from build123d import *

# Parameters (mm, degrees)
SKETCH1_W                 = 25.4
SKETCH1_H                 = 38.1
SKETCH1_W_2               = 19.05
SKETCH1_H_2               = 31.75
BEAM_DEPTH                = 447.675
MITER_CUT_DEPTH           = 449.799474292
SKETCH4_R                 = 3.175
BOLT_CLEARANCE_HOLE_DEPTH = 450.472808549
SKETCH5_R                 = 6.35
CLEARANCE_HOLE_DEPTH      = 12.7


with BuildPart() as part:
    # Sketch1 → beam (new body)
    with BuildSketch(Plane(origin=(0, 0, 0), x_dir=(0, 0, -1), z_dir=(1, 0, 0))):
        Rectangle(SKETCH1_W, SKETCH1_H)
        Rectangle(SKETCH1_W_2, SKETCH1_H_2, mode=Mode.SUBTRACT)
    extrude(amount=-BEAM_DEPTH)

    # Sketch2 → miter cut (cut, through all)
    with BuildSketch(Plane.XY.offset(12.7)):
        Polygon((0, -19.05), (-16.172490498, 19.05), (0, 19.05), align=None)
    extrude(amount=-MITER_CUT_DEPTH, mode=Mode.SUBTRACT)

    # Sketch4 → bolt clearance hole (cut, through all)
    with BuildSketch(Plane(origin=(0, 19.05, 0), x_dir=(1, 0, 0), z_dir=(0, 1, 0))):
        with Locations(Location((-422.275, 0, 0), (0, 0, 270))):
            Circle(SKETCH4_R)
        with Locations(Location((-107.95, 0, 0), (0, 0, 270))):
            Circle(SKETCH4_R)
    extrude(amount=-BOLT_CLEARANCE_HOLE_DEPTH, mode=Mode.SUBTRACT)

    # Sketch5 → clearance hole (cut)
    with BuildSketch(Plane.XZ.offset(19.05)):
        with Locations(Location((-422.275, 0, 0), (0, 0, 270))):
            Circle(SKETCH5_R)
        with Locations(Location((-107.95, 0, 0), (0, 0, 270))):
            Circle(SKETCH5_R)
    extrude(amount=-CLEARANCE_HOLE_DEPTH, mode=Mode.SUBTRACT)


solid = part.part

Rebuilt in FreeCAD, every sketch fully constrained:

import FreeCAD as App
import Part
import Sketcher
Q = App.Units.Quantity

doc = App.newDocument("Part")
body = doc.addObject("PartDesign::Body", "Body")

# Sketch on YZ plane
sketch1 = body.newObject("Sketcher::SketchObject", "Sketch")
sketch1.AttachmentSupport = (doc.getObject("YZ_Plane"), [""])
sketch1.MapMode = "FlatFace"
sketch1.addGeometry(Part.LineSegment(App.Vector(19, 13, 0), App.Vector(-19, 13, 0)), False)
sketch1.addGeometry(Part.LineSegment(App.Vector(-19, 13, 0), App.Vector(-19, -13, 0)), False)
sketch1.addGeometry(Part.LineSegment(App.Vector(-19, -13, 0), App.Vector(19, -13, 0)), False)
sketch1.addGeometry(Part.LineSegment(App.Vector(19, -13, 0), App.Vector(19, 13, 0)), False)
sketch1.addGeometry(Part.LineSegment(App.Vector(-16, -10, 0), App.Vector(-16, 10, 0)), False)
sketch1.addGeometry(Part.LineSegment(App.Vector(-16, 10, 0), App.Vector(16, 10, 0)), False)
sketch1.addGeometry(Part.LineSegment(App.Vector(16, 10, 0), App.Vector(16, -10, 0)), False)
sketch1.addGeometry(Part.LineSegment(App.Vector(16, -10, 0), App.Vector(-16, -10, 0)), False)
sketch1.addConstraint(Sketcher.Constraint("Coincident", 0, 2, 1, 1))
sketch1.addConstraint(Sketcher.Constraint("Coincident", 1, 2, 2, 1))
sketch1.addConstraint(Sketcher.Constraint("Coincident", 2, 2, 3, 1))
sketch1.addConstraint(Sketcher.Constraint("Coincident", 3, 2, 0, 1))
sketch1.addConstraint(Sketcher.Constraint("Coincident", 4, 2, 5, 1))
sketch1.addConstraint(Sketcher.Constraint("Coincident", 5, 2, 6, 1))
sketch1.addConstraint(Sketcher.Constraint("Coincident", 6, 2, 7, 1))
sketch1.addConstraint(Sketcher.Constraint("Coincident", 7, 2, 4, 1))
sketch1.addConstraint(Sketcher.Constraint("Horizontal", 0))
sketch1.addConstraint(Sketcher.Constraint("Vertical", 1))
sketch1.addConstraint(Sketcher.Constraint("Horizontal", 2))
sketch1.addConstraint(Sketcher.Constraint("Vertical", 3))
sketch1.addConstraint(Sketcher.Constraint("Vertical", 4))
sketch1.addConstraint(Sketcher.Constraint("Horizontal", 5))
sketch1.addConstraint(Sketcher.Constraint("Vertical", 6))
sketch1.addConstraint(Sketcher.Constraint("Horizontal", 7))
sketch1.addConstraint(Sketcher.Constraint("Symmetric", 0, 2, 2, 2, -1, 1))
sketch1.addConstraint(Sketcher.Constraint("Symmetric", 4, 2, 6, 2, -1, 1))
sketch1.addConstraint(Sketcher.Constraint("DistanceY", 1, 2, 1, 1, Q("1 in")))
sketch1.addConstraint(Sketcher.Constraint("DistanceX", 0, 2, 0, 1, Q("1.5 in")))
sketch1.addConstraint(Sketcher.Constraint("DistanceX", 5, 1, 5, 2, Q("1.25 in")))
sketch1.addConstraint(Sketcher.Constraint("DistanceY", 4, 1, 4, 2, Q("0.75 in")))
pad1 = body.newObject("PartDesign::Pad", "Pad")
pad1.Profile = sketch1
pad1.Length = Q("17.625 in")
pad1.Reversed = True

# Sketch on XY plane
sketch2 = body.newObject("Sketcher::SketchObject", "Sketch001")
sketch2.AttachmentSupport = (doc.getObject("XY_Plane"), [""])
sketch2.MapMode = "FlatFace"
sketch2.AttachmentOffset = App.Placement(App.Vector(0, 0, 0.5 * 25.4), App.Rotation())
sketch2.addGeometry(Part.LineSegment(App.Vector(-16, 19, 0), App.Vector(0, -19, 0)), False)
sketch2.addGeometry(Part.LineSegment(App.Vector(0, -19, 0), App.Vector(0, 19, 0)), False)
sketch2.addGeometry(Part.LineSegment(App.Vector(0, 19, 0), App.Vector(-16, 19, 0)), False)
sketch2.addConstraint(Sketcher.Constraint("Coincident", 0, 2, 1, 1))
sketch2.addConstraint(Sketcher.Constraint("Coincident", 1, 2, 2, 1))
sketch2.addConstraint(Sketcher.Constraint("Coincident", 2, 2, 0, 1))
sketch2.addConstraint(Sketcher.Constraint("Vertical", 1))
sketch2.addConstraint(Sketcher.Constraint("Horizontal", 2))
sketch2.addConstraint(Sketcher.Constraint("Symmetric", 0, 2, 1, 2, -1, 1))
sketch2.addConstraint(Sketcher.Constraint("DistanceY", 1, 1, 1, 2, Q("1.5 in")))
sketch2.addConstraint(Sketcher.Constraint("Angle", 0, Q("-67 deg")))
pocket1 = body.newObject("PartDesign::Pocket", "Pocket")
pocket1.Profile = sketch2
pocket1.Type = "ThroughAll"

# Sketch on XZ plane
sketch3 = body.newObject("Sketcher::SketchObject", "Sketch002")
sketch3.AttachmentSupport = (doc.getObject("XZ_Plane"), [""])
sketch3.MapMode = "FlatFace"
sketch3.AttachmentOffset = App.Placement(App.Vector(0, 0, -0.75 * 25.4), App.Rotation())
sketch3.addGeometry(Part.Circle(App.Vector(-422.3, 0, 0), App.Vector(0, 0, 1), 3.2), False)
sketch3.addGeometry(Part.Circle(App.Vector(-108, 0, 0), App.Vector(0, 0, 1), 3.2), False)
sketch3.addConstraint(Sketcher.Constraint("Equal", 0, 1))
sketch3.addConstraint(Sketcher.Constraint("PointOnObject", 0, 3, -1))
sketch3.addConstraint(Sketcher.Constraint("PointOnObject", 1, 3, -1))
sketch3.addConstraint(Sketcher.Constraint("Diameter", 0, Q("0.25 in")))
sketch3.addConstraint(Sketcher.Constraint("DistanceX", 1, 3, -1, 1, Q("4.25 in")))
sketch3.addConstraint(Sketcher.Constraint("DistanceX", 0, 3, -1, 1, Q("16.625 in")))
pocket2 = body.newObject("PartDesign::Pocket", "Pocket001")
pocket2.Profile = sketch3
pocket2.Type = "ThroughAll"
pocket2.Reversed = True

# Sketch on XZ plane
sketch4 = body.newObject("Sketcher::SketchObject", "Sketch003")
sketch4.AttachmentSupport = (doc.getObject("XZ_Plane"), [""])
sketch4.MapMode = "FlatFace"
sketch4.AttachmentOffset = App.Placement(App.Vector(0, 0, 0.75 * 25.4), App.Rotation())
sketch4.addGeometry(Part.Circle(App.Vector(-422, 0, 0), App.Vector(0, 0, 1), 6), False)
sketch4.addGeometry(Part.Circle(App.Vector(-108, 0, 0), App.Vector(0, 0, 1), 6), False)
sketch4.addConstraint(Sketcher.Constraint("Equal", 0, 1))
sketch4.addConstraint(Sketcher.Constraint("PointOnObject", 0, 3, -1))
sketch4.addConstraint(Sketcher.Constraint("PointOnObject", 1, 3, -1))
sketch4.addConstraint(Sketcher.Constraint("Diameter", 0, Q("0.5 in")))
sketch4.addConstraint(Sketcher.Constraint("DistanceX", 1, 3, -1, 1, Q("4.25 in")))
sketch4.addConstraint(Sketcher.Constraint("DistanceX", 0, 3, -1, 1, Q("16.625 in")))
pocket3 = body.newObject("PartDesign::Pocket", "Pocket002")
pocket3.Profile = sketch4
pocket3.Length = Q("0.5 in")

doc.recompute()
